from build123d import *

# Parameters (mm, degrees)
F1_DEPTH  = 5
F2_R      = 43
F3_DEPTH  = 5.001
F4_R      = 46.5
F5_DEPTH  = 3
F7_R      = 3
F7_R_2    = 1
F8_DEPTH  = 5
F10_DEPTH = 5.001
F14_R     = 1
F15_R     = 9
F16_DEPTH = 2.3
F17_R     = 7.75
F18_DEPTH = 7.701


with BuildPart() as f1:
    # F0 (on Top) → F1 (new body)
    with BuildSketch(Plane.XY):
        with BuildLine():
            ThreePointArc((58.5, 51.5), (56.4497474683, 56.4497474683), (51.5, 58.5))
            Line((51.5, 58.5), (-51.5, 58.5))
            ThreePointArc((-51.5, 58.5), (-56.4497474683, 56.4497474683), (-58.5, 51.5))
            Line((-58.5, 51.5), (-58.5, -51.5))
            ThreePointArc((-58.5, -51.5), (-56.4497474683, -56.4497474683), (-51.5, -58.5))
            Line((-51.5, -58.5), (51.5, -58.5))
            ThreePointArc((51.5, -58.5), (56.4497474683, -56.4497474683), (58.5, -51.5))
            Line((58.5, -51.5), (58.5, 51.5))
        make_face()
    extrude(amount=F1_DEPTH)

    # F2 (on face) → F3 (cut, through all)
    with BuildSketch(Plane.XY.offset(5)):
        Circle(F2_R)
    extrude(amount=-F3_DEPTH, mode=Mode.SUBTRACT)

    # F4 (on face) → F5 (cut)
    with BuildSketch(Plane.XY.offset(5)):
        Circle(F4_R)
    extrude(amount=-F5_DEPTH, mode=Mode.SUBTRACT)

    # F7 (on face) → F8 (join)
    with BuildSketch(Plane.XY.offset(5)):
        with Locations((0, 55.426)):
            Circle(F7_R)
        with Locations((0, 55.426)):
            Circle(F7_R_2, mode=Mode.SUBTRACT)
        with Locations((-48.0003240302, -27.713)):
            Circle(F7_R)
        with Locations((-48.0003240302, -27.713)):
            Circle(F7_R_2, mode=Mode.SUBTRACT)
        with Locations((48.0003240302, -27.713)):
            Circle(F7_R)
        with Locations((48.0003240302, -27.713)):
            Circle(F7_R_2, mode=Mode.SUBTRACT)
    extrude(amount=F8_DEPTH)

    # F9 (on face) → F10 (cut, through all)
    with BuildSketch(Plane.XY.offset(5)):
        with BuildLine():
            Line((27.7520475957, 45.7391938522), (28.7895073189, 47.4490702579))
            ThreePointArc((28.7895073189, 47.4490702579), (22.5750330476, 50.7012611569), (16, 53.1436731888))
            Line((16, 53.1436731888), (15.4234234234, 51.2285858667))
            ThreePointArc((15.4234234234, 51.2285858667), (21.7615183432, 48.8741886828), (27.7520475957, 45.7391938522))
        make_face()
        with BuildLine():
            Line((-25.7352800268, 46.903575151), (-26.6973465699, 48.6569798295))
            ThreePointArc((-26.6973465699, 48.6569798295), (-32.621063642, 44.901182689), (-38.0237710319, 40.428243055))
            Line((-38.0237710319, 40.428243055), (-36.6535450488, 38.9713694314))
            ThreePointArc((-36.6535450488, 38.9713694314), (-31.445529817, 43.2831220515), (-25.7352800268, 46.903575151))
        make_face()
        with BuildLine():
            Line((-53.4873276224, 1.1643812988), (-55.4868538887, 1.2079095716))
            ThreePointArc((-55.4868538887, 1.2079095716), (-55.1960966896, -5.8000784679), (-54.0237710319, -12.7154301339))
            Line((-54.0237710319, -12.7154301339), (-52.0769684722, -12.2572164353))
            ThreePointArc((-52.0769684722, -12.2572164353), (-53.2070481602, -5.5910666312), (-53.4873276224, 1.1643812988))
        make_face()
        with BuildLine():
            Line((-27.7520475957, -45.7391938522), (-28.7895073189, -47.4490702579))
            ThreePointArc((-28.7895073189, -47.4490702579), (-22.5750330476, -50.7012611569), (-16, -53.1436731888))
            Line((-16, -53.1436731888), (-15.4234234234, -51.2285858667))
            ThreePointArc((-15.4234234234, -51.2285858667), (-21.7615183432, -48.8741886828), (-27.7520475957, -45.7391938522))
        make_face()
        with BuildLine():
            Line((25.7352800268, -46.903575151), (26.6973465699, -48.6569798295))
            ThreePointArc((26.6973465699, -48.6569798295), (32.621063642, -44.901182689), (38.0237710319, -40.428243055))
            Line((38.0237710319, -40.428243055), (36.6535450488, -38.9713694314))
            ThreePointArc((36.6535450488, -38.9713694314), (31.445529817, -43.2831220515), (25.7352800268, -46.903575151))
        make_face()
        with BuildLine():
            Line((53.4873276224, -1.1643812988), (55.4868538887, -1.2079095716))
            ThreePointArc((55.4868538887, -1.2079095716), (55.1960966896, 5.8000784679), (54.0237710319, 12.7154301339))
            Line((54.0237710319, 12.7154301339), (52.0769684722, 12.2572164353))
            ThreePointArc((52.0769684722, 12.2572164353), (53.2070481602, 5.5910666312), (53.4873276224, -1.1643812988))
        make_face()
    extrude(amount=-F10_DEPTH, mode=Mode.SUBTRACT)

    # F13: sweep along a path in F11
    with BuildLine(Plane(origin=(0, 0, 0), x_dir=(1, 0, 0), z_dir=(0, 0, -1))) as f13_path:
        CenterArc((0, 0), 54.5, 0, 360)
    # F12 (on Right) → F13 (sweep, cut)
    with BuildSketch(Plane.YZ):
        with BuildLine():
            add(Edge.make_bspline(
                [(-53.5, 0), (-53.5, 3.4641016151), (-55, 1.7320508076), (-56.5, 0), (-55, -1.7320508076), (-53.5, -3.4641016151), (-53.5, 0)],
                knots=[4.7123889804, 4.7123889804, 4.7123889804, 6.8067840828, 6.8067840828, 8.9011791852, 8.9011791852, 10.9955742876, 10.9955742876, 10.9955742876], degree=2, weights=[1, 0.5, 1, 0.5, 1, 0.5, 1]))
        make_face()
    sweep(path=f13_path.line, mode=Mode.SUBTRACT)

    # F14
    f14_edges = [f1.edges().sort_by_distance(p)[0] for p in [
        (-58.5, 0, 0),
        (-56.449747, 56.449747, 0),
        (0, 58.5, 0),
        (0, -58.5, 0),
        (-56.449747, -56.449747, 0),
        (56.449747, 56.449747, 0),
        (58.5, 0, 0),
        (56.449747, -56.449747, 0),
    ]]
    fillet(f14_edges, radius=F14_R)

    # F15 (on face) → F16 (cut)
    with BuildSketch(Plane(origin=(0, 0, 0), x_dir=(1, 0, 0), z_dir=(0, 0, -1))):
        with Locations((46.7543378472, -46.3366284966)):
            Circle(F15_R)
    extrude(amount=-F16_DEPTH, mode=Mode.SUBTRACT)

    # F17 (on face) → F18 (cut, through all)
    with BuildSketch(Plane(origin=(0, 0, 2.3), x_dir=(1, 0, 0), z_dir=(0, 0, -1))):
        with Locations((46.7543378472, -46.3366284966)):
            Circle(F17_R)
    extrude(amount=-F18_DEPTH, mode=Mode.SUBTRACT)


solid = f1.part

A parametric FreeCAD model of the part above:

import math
import FreeCAD as App
import Part
import Sketcher
Q = App.Units.Quantity


def edges_at(feature, points):
    """Names of the edges that pass closest to the given points."""
    edges = feature.Shape.Edges
    near = lambda p: min(range(len(edges)), key=lambda i: edges[i].distToShape(Part.Vertex(*p))[0])
    return sorted({f"Edge{near(p) + 1}" for p in points})

doc = App.newDocument("Part")
body = doc.addObject("PartDesign::Body", "Body")

sketch1 = body.newObject("Sketcher::SketchObject", "Sketch")
sketch1.AttachmentSupport = (doc.getObject("XY_Plane"), [""])
sketch1.MapMode = "FlatFace"
sketch1.addGeometry([
    Part.ArcOfCircle(Part.Circle(App.Vector(52, 52, 0), App.Vector(0, 0, 1), 7), math.radians(0), math.radians(90)),
    Part.LineSegment(App.Vector(52, 58, 0), App.Vector(-52, 58, 0)),
    Part.ArcOfCircle(Part.Circle(App.Vector(-52, 52, 0), App.Vector(0, 0, 1), 7), math.radians(90), math.radians(180)),
    Part.LineSegment(App.Vector(-58, 52, 0), App.Vector(-58, -52, 0)),
    Part.ArcOfCircle(Part.Circle(App.Vector(-52, -52, 0), App.Vector(0, 0, 1), 7), math.radians(180), math.radians(270)),
    Part.LineSegment(App.Vector(-52, -58, 0), App.Vector(52, -58, 0)),
    Part.ArcOfCircle(Part.Circle(App.Vector(52, -52, 0), App.Vector(0, 0, 1), 7), math.radians(-90), math.radians(0)),
    Part.LineSegment(App.Vector(58, -52, 0), App.Vector(58, 52, 0)),
], False)
sketch1.addConstraint([
    Sketcher.Constraint("Tangent", 0, 2, 1, 1),
    Sketcher.Constraint("Tangent", 1, 2, 2, 1),
    Sketcher.Constraint("Tangent", 2, 2, 3, 1),
    Sketcher.Constraint("Tangent", 3, 2, 4, 1),
    Sketcher.Constraint("Tangent", 4, 2, 5, 1),
    Sketcher.Constraint("Tangent", 5, 2, 6, 1),
    Sketcher.Constraint("Tangent", 6, 2, 7, 1),
    Sketcher.Constraint("Tangent", 7, 2, 0, 1),
    Sketcher.Constraint("Horizontal", 1),
    Sketcher.Constraint("Vertical", 3),
    Sketcher.Constraint("Horizontal", 5),
    Sketcher.Constraint("Vertical", 7),
    Sketcher.Constraint("Equal", 0, 2),
    Sketcher.Constraint("Equal", 2, 4),
    Sketcher.Constraint("Equal", 4, 6),
    Sketcher.Constraint("Symmetric", 0, 3, 4, 3, -1, 1),
    Sketcher.Constraint("Equal", 5, 3),
    Sketcher.Constraint("Radius", 0, Q("7 mm")),
    Sketcher.Constraint("DistanceX", 1, 2, 1, 1, Q("103 mm")),
])
pad1 = body.newObject("PartDesign::Pad", "Pad")
pad1.Profile = sketch1
pad1.Length = 5

sketch2 = body.newObject("Sketcher::SketchObject", "Sketch001")
sketch2.AttachmentSupport = (doc.getObject("XY_Plane"), [""])
sketch2.MapMode = "FlatFace"
sketch2.AttachmentOffset = App.Placement(App.Vector(0, 0, 5), App.Rotation())
sketch2.addGeometry(Part.Circle(App.Vector(0, 0, 0), App.Vector(0, 0, 1), 43), False)
sketch2.addConstraint([
    Sketcher.Constraint("Coincident", 0, 3, -1, 1),
    Sketcher.Constraint("Diameter", 0, Q("86 mm")),
])
pocket1 = body.newObject("PartDesign::Pocket", "Pocket")
pocket1.Profile = sketch2
pocket1.Type = "ThroughAll"

sketch3 = body.newObject("Sketcher::SketchObject", "Sketch002")
sketch3.AttachmentSupport = (doc.getObject("XY_Plane"), [""])
sketch3.MapMode = "FlatFace"
sketch3.AttachmentOffset = App.Placement(App.Vector(0, 0, 5), App.Rotation())
sketch3.addGeometry(Part.Circle(App.Vector(0, 0, 0), App.Vector(0, 0, 1), 46), False)
sketch3.addConstraint([
    Sketcher.Constraint("Coincident", 0, 3, -1, 1),
    Sketcher.Constraint("Diameter", 0, Q("93 mm")),
])
pocket2 = body.newObject("PartDesign::Pocket", "Pocket001")
pocket2.Profile = sketch3
pocket2.Length = 3

sketch4 = body.newObject("Sketcher::SketchObject", "Sketch003")
sketch4.AttachmentSupport = (doc.getObject("XY_Plane"), [""])
sketch4.MapMode = "FlatFace"
sketch4.AttachmentOffset = App.Placement(App.Vector(0, 0, 5), App.Rotation())
sketch4.addGeometry([
    Part.Circle(App.Vector(0, 55.4, 0), App.Vector(0, 0, 1), 3),
    Part.Circle(App.Vector(0, 55.4, 0), App.Vector(0, 0, 1), 1),
    Part.Circle(App.Vector(-48, -27.7, 0), App.Vector(0, 0, 1), 3),
    Part.Circle(App.Vector(-48, -27.7, 0), App.Vector(0, 0, 1), 1),
    Part.Circle(App.Vector(48, -27.7, 0), App.Vector(0, 0, 1), 3),
    Part.Circle(App.Vector(48, -27.7, 0), App.Vector(0, 0, 1), 1),
], False)
sketch4.addConstraint([
    Sketcher.Constraint("Coincident", 1, 3, 0, 3),
    Sketcher.Constraint("Coincident", 3, 3, 2, 3),
    Sketcher.Constraint("Coincident", 5, 3, 4, 3),
    Sketcher.Constraint("Equal", 0, 2),
    Sketcher.Constraint("Equal", 1, 3),
    Sketcher.Constraint("Equal", 2, 4),
    Sketcher.Constraint("Equal", 3, 5),
    Sketcher.Constraint("Symmetric", 2, 3, 4, 3, -2),
    Sketcher.Constraint("PointOnObject", 0, 3, -2),
    Sketcher.Constraint("Diameter", 0, Q("6 mm")),
    Sketcher.Constraint("Diameter", 1, Q("2 mm")),
    Sketcher.Constraint("DistanceY", -1, 1, 0, 3, Q("55.426 mm")),
    Sketcher.Constraint("DistanceY", 2, 3, -1, 1, Q("27.713 mm")),
    Sketcher.Constraint("DistanceX", 2, 3, 4, 3, Q("96.000648 mm")),
])
pad2 = body.newObject("PartDesign::Pad", "Pad001")
pad2.Profile = sketch4
pad2.Length = 5

sketch5 = body.newObject("Sketcher::SketchObject", "Sketch004")
sketch5.AttachmentSupport = (doc.getObject("XY_Plane"), [""])
sketch5.MapMode = "FlatFace"
sketch5.AttachmentOffset = App.Placement(App.Vector(0, 0, 5), App.Rotation())
sketch5.addGeometry([
    Part.LineSegment(App.Vector(27.8, 45.7, 0), App.Vector(28.8, 47.4, 0)),
    Part.ArcOfCircle(Part.Circle(App.Vector(0, 0, 0), App.Vector(0, 0, 1), 55.5), math.radians(58.75), math.radians(73.24)),
    Part.LineSegment(App.Vector(16, 53.1, 0), App.Vector(15.4, 51.2, 0)),
    Part.ArcOfCircle(Part.Circle(App.Vector(0, 0, 0), App.Vector(0, 0, 1), 53.5), math.radians(58.75), math.radians(73.24)),
    Part.LineSegment(App.Vector(-25.7, 46.9, 0), App.Vector(-26.7, 48.7, 0)),
    Part.ArcOfCircle(Part.Circle(App.Vector(0, 0, 0), App.Vector(0, 0, 1), 55.5), math.radians(118.75), math.radians(133.24)),
    Part.LineSegment(App.Vector(-38, 40.4, 0), App.Vector(-36.7, 39, 0)),
    Part.ArcOfCircle(Part.Circle(App.Vector(0, 0, 0), App.Vector(0, 0, 1), 53.5), math.radians(118.75), math.radians(133.24)),
    Part.LineSegment(App.Vector(-53.5, 1.2, 0), App.Vector(-55.5, 1.2, 0)),
    Part.ArcOfCircle(Part.Circle(App.Vector(0, 0, 0), App.Vector(0, 0, 1), 55.5), math.radians(178.75), math.radians(193.24)),
    Part.LineSegment(App.Vector(-54, -12.7, 0), App.Vector(-52.1, -12.3, 0)),
    Part.ArcOfCircle(Part.Circle(App.Vector(0, 0, 0), App.Vector(0, 0, 1), 53.5), math.radians(178.75), math.radians(193.24)),
    Part.LineSegment(App.Vector(-27.8, -45.7, 0), App.Vector(-28.8, -47.4, 0)),
    Part.ArcOfCircle(Part.Circle(App.Vector(0, 0, 0), App.Vector(0, 0, 1), 55.5), math.radians(-121.25), math.radians(-106.76)),
    Part.LineSegment(App.Vector(-16, -53.1, 0), App.Vector(-15.4, -51.2, 0)),
    Part.ArcOfCircle(Part.Circle(App.Vector(0, 0, 0), App.Vector(0, 0, 1), 53.5), math.radians(-121.25), math.radians(-106.76)),
    Part.LineSegment(App.Vector(25.7, -46.9, 0), App.Vector(26.7, -48.7, 0)),
    Part.ArcOfCircle(Part.Circle(App.Vector(0, 0, 0), App.Vector(0, 0, 1), 55.5), math.radians(-61.25), math.radians(-46.76)),
    Part.LineSegment(App.Vector(38, -40.4, 0), App.Vector(36.7, -39, 0)),
    Part.ArcOfCircle(Part.Circle(App.Vector(0, 0, 0), App.Vector(0, 0, 1), 53.5), math.radians(-61.25), math.radians(-46.76)),
    Part.LineSegment(App.Vector(53.5, -1.2, 0), App.Vector(55.5, -1.2, 0)),
    Part.ArcOfCircle(Part.Circle(App.Vector(0, 0, 0), App.Vector(0, 0, 1), 55.5), math.radians(-1.25), math.radians(13.24)),
    Part.LineSegment(App.Vector(54, 12.7, 0), App.Vector(52.1, 12.3, 0)),
    Part.ArcOfCircle(Part.Circle(App.Vector(0, 0, 0), App.Vector(0, 0, 1), 53.5), math.radians(-1.25), math.radians(13.24)),
], False)
sketch5.addConstraint([
    Sketcher.Constraint("Coincident", 0, 2, 1, 1),
    Sketcher.Constraint("Coincident", 1, 2, 2, 1),
    Sketcher.Constraint("Coincident", 2, 2, 3, 2),
    Sketcher.Constraint("Coincident", 3, 1, 0, 1),
    Sketcher.Constraint("Coincident", 4, 2, 5, 1),
    Sketcher.Constraint("Coincident", 5, 2, 6, 1),
    Sketcher.Constraint("Coincident", 6, 2, 7, 2),
    Sketcher.Constraint("Coincident", 7, 1, 4, 1),
    Sketcher.Constraint("Coincident", 8, 2, 9, 1),
    Sketcher.Constraint("Coincident", 9, 2, 10, 1),
    Sketcher.Constraint("Coincident", 10, 2, 11, 2),
    Sketcher.Constraint("Coincident", 11, 1, 8, 1),
    Sketcher.Constraint("Coincident", 12, 2, 13, 1),
    Sketcher.Constraint("Coincident", 13, 2, 14, 1),
    Sketcher.Constraint("Coincident", 14, 2, 15, 2),
    Sketcher.Constraint("Coincident", 15, 1, 12, 1),
    Sketcher.Constraint("Coincident", 16, 2, 17, 1),
    Sketcher.Constraint("Coincident", 17, 2, 18, 1),
    Sketcher.Constraint("Coincident", 18, 2, 19, 2),
    Sketcher.Constraint("Coincident", 19, 1, 16, 1),
    Sketcher.Constraint("Coincident", 20, 2, 21, 1),
    Sketcher.Constraint("Coincident", 21, 2, 22, 1),
    Sketcher.Constraint("Coincident", 22, 2, 23, 2),
    Sketcher.Constraint("Coincident", 23, 1, 20, 1),
    Sketcher.Constraint("Coincident", 1, 3, -1, 1),
    Sketcher.Constraint("Coincident", 3, 3, -1, 1),
    Sketcher.Constraint("Coincident", 5, 3, -1, 1),
    Sketcher.Constraint("Coincident", 7, 3, -1, 1),
    Sketcher.Constraint("Coincident", 9, 3, -1, 1),
    Sketcher.Constraint("Coincident", 11, 3, -1, 1),
    Sketcher.Constraint("Coincident", 13, 3, -1, 1),
    Sketcher.Constraint("Coincident", 15, 3, -1, 1),
    Sketcher.Constraint("Coincident", 17, 3, -1, 1),
    Sketcher.Constraint("Coincident", 19, 3, -1, 1),
    Sketcher.Constraint("Coincident", 21, 3, -1, 1),
    Sketcher.Constraint("Coincident", 23, 3, -1, 1),
    Sketcher.Constraint("Equal", 1, 5),
    Sketcher.Constraint("Equal", 3, 7),
    Sketcher.Constraint("Equal", 5, 9),
    Sketcher.Constraint("Equal", 7, 11),
    Sketcher.Constraint("Equal", 9, 13),
    Sketcher.Constraint("Equal", 11, 15),
    Sketcher.Constraint("Equal", 13, 17),
    Sketcher.Constraint("Equal", 15, 19),
    Sketcher.Constraint("Equal", 17, 21),
    Sketcher.Constraint("Equal", 19, 23),
    Sketcher.Constraint("Parallel", 0, 12),
    Sketcher.Constraint("Parallel", 2, 14),
    Sketcher.Constraint("Parallel", 4, 16),
    Sketcher.Constraint("Parallel", 6, 18),
    Sketcher.Constraint("Parallel", 8, 20),
    Sketcher.Constraint("Parallel", 10, 22),
    Sketcher.Constraint("Radius", 1, Q("55.5 mm")),
    Sketcher.Constraint("Radius", 3, Q("53.5 mm")),
    Sketcher.Constraint("DistanceX", -1, 1, 1, 2, Q("16 mm")),
    Sketcher.Constraint("DistanceX", 13, 2, -1, 1, Q("16 mm")),
    Sketcher.Constraint("DistanceX", 6, 2, 4, 2, Q("9.956198 mm")),
    Sketcher.Constraint("DistanceY", 7, 1, 1, 2, Q("6.240098 mm")),
    Sketcher.Constraint("DistanceY", 9, 2, 6, 2, Q("51.6868 mm")),
    Sketcher.Constraint("DistanceX", 16, 2, 18, 2, Q("9.956198 mm")),
    Sketcher.Constraint("DistanceY", 13, 2, 19, 1, Q("6.240098 mm")),
    Sketcher.Constraint("DistanceY", 18, 2, 21, 2, Q("51.6868 mm")),
    Sketcher.Constraint("DistanceY", -1, 1, 0, 2, Q("47.44907 mm")),
    Sketcher.Constraint("DistanceY", -1, 1, 4, 2, Q("48.65698 mm")),
    Sketcher.Constraint("DistanceX", 5, 2, -1, 1, Q("38.023771 mm")),
    Sketcher.Constraint("DistanceY", -1, 1, 8, 2, Q("1.20791 mm")),
    Sketcher.Constraint("DistanceX", 10, 2, -1, 1, Q("52.076968 mm")),
    Sketcher.Constraint("DistanceY", -1, 1, 11, 1, Q("1.164381 mm")),
    Sketcher.Constraint("DistanceY", 12, 2, -1, 1, Q("47.44907 mm")),
    Sketcher.Constraint("DistanceY", 20, 2, -1, 1, Q("1.20791 mm")),
    Sketcher.Constraint("DistanceX", 3, 1, 0, 2, Q("1.03746 mm")),
    Sketcher.Constraint("DistanceX", 4, 2, 2, 2, Q("42.12077 mm")),
])
pocket3 = body.newObject("PartDesign::Pocket", "Pocket002")
pocket3.Profile = sketch5
pocket3.Type = "ThroughAll"

sketch6 = body.newObject("Sketcher::SketchObject", "Sketch005")
sketch6.AttachmentSupport = (doc.getObject("YZ_Plane"), [""])
sketch6.MapMode = "FlatFace"
sketch6.addGeometry(Part.BSplineCurve([App.Vector(-53.5, 0, 0), App.Vector(-53.5, 3.464102, 0), App.Vector(-55, 1.732051, 0), App.Vector(-56.5, 0, 0), App.Vector(-55, -1.732051, 0), App.Vector(-53.5, -3.464102, 0), App.Vector(-53.5, 0, 0)], [3, 2, 2, 3], [4.71238898, 6.806784083, 8.901179185, 10.995574288], False, 2, [1, 0.5, 1, 0.5, 1, 0.5, 1], False), False)
sketch6.addConstraint(Sketcher.Constraint("Block", 0))

sketch7 = body.newObject("Sketcher::SketchObject", "Sketch006")
sketch7.AttachmentSupport = (doc.getObject("XY_Plane"), [""])
sketch7.MapMode = "FlatFace"
sketch7.addGeometry(Part.Circle(App.Vector(0, 0, 0), App.Vector(0, 0, 1), 54), False)
sketch7.addConstraint([
    Sketcher.Constraint("Coincident", 0, 3, -1, 1),
    Sketcher.Constraint("Diameter", 0, Q("109 mm")),
])
doc.recompute()

subtractivepipe = body.newObject("PartDesign::SubtractivePipe", "SubtractivePipe")
subtractivepipe.Profile = sketch6
subtractivepipe.Spine = (sketch7, ["Edge1"])
doc.recompute()

fillet = body.newObject("PartDesign::Fillet", "Fillet")
fillet.Base = (subtractivepipe, edges_at(subtractivepipe, [
    (-58.5, 0, 0),
    (-56.45, 56.45, 0),
    (0, 58.5, 0),
    (0, -58.5, 0),
    (-56.45, -56.45, 0),
    (56.45, 56.45, 0),
    (58.5, 0, 0),
    (56.45, -56.45, 0),
]))
fillet.Radius = 1

sketch8 = body.newObject("Sketcher::SketchObject", "Sketch007")
sketch8.AttachmentSupport = (doc.getObject("XY_Plane"), [""])
sketch8.MapMode = "FlatFace"
sketch8.addGeometry(Part.Circle(App.Vector(47, 46, 0), App.Vector(0, 0, 1), 9), False)
sketch8.addConstraint([
    Sketcher.Constraint("Diameter", 0, Q("18 mm")),
    Sketcher.Constraint("DistanceY", -1, 1, 0, 3, Q("46.336628 mm")),
    Sketcher.Constraint("DistanceX", -1, 1, 0, 3, Q("46.754338 mm")),
])
pocket4 = body.newObject("PartDesign::Pocket", "Pocket003")
pocket4.Profile = sketch8
pocket4.Length = 2.3
pocket4.Reversed = True

sketch9 = body.newObject("Sketcher::SketchObject", "Sketch008")
sketch9.AttachmentSupport = (doc.getObject("XY_Plane"), [""])
sketch9.MapMode = "FlatFace"
sketch9.AttachmentOffset = App.Placement(App.Vector(0, 0, 2.3), App.Rotation())
sketch9.addGeometry(Part.Circle(App.Vector(47, 46, 0), App.Vector(0, 0, 1), 8), False)
sketch9.addConstraint([
    Sketcher.Constraint("Diameter", 0, Q("15.5 mm")),
    Sketcher.Constraint("DistanceY", -1, 1, 0, 3, Q("46.336628 mm")),
    Sketcher.Constraint("DistanceX", -1, 1, 0, 3, Q("46.754338 mm")),
])
pocket5 = body.newObject("PartDesign::Pocket", "Pocket004")
pocket5.Profile = sketch9
pocket5.Type = "ThroughAll"
pocket5.Reversed = True

doc.recompute()
